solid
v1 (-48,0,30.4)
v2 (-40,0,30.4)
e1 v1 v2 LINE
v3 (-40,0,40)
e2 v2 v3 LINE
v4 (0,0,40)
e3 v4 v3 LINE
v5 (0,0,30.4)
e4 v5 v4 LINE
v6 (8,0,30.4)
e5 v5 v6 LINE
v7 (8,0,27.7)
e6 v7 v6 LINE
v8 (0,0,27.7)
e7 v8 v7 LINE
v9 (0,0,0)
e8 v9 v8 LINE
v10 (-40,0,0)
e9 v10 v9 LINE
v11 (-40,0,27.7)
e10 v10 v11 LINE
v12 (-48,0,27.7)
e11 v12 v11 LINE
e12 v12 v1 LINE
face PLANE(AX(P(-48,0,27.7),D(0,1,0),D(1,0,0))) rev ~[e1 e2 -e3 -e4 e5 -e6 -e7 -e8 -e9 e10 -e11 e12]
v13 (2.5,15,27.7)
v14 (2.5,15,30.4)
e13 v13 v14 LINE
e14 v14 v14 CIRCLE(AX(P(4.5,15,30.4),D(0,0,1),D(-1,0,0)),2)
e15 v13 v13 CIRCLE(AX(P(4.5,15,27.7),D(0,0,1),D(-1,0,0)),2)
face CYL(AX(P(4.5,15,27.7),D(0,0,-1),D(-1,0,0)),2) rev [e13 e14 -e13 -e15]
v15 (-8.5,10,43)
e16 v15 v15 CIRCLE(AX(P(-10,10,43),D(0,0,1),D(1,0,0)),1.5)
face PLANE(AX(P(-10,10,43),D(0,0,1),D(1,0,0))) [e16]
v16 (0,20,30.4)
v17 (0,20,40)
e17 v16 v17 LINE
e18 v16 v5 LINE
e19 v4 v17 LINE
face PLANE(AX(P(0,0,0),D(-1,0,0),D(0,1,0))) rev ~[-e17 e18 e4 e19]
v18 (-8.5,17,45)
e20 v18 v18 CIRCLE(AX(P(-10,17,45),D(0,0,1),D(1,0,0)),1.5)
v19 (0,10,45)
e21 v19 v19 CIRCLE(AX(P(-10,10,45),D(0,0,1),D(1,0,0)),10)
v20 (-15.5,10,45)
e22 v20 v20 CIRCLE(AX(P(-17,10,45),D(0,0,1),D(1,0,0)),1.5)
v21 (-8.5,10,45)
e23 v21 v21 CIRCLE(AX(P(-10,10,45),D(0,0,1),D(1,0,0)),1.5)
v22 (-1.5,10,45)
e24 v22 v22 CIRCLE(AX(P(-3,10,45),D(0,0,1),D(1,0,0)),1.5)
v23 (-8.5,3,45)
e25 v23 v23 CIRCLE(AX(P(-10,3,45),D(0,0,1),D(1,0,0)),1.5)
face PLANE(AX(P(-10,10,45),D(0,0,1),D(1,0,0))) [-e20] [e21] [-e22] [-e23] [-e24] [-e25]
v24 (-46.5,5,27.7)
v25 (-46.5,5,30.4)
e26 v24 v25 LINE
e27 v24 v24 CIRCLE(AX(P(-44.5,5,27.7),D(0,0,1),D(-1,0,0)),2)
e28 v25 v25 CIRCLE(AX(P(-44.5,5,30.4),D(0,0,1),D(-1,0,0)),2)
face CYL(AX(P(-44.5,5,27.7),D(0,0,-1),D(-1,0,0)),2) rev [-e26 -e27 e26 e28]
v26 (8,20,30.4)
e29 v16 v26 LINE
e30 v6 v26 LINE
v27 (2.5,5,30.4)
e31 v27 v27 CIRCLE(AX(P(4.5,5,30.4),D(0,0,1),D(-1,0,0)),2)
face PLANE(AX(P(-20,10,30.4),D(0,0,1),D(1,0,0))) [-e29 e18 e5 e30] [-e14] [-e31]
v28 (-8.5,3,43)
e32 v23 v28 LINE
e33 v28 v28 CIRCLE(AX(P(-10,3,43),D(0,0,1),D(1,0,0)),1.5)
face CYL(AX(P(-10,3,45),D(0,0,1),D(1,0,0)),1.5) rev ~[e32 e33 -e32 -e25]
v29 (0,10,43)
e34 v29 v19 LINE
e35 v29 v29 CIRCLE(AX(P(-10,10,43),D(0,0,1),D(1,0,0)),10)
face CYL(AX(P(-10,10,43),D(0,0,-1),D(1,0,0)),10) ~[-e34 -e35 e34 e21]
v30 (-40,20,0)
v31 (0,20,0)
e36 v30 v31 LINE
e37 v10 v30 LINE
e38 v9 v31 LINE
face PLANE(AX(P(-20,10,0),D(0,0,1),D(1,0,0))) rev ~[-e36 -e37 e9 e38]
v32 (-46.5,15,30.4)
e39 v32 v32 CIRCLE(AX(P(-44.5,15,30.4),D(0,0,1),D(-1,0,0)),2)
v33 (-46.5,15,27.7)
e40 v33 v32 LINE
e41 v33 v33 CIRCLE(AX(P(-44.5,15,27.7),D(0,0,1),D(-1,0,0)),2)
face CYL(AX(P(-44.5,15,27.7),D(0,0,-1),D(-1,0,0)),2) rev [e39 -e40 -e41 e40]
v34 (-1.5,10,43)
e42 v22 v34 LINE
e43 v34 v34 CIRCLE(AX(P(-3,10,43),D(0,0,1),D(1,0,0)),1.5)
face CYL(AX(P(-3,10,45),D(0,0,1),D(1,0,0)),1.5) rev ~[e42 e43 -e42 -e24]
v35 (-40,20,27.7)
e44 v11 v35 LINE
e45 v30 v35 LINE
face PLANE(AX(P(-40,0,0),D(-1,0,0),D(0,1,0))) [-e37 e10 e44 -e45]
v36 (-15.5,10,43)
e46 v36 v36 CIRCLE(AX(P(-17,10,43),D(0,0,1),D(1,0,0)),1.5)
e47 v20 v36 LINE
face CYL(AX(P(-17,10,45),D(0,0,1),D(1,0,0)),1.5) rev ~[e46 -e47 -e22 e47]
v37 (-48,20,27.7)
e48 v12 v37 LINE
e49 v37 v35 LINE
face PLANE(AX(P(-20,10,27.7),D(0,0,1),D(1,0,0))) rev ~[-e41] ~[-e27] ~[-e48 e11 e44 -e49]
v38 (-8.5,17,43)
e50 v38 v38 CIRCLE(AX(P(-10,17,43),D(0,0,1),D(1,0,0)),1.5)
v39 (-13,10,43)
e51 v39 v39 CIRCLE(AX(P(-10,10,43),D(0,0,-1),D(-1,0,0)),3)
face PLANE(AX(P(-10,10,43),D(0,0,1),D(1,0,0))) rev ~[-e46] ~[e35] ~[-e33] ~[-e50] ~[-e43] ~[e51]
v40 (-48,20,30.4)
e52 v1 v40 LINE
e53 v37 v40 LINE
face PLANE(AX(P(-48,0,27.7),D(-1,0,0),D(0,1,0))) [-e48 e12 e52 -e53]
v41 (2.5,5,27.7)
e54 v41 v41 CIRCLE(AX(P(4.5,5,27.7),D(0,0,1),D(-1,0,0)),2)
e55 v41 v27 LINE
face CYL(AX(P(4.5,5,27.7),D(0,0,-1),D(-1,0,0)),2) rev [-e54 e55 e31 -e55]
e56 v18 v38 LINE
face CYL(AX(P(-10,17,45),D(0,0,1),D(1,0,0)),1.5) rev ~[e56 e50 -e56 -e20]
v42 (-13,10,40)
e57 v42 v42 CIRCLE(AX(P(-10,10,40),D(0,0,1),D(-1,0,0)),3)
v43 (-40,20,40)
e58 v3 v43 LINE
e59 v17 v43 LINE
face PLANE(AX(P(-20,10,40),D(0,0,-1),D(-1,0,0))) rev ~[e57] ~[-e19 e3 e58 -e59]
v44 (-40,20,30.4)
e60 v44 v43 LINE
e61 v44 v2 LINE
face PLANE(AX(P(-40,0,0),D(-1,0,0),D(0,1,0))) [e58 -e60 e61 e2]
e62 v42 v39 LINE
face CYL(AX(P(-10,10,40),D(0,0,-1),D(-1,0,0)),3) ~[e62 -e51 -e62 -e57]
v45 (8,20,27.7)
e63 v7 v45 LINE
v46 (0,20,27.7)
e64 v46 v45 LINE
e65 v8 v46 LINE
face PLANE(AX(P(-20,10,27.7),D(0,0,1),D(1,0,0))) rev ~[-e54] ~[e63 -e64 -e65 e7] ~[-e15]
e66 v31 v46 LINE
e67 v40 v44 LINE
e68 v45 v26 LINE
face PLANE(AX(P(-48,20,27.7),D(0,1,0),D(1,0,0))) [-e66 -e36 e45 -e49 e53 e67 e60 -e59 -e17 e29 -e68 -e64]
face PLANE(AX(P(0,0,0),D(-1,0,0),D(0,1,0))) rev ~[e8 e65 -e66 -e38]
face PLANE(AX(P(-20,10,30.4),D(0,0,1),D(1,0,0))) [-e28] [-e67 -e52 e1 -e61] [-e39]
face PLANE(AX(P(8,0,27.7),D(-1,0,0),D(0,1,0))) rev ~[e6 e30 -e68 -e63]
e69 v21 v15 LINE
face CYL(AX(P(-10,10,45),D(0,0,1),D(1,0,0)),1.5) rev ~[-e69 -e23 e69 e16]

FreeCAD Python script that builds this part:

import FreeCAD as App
import Part
import Sketcher
from FreeCAD import Vector


def add_polygon(sketch, points):
    """Adds a closed chain of lines whose ends are joined by coincident constraints."""
    first, n = sketch.GeometryCount, len(points)
    for a, b in zip(points, points[1:] + points[:1]):
        sketch.addGeometry(Part.LineSegment(App.Vector(*a, 0), App.Vector(*b, 0)), False)
    for i in range(n):
        sketch.addConstraint(Sketcher.Constraint("Coincident", first + i, 2, first + (i + 1) % n, 1))

doc = App.newDocument("Part")
body = doc.addObject("PartDesign::Body", "Body")

# Sketch on XY plane
sketch1 = body.newObject("Sketcher::SketchObject", "Sketch")
sketch1.AttachmentSupport = (doc.getObject("XY_Plane"), [""])
sketch1.MapMode = "FlatFace"
add_polygon(sketch1, [(-40, 20), (-40, 0), (0, 0), (0, 20)])  # lines 0-3
sketch1.addConstraint([
    Sketcher.Constraint("Vertical", 0),
    Sketcher.Constraint("Horizontal", 1),
    Sketcher.Constraint("Vertical", 2),
    Sketcher.Constraint("Horizontal", 3),
    Sketcher.Constraint("Coincident", 1, 2, -1, 1),
    Sketcher.Constraint("DistanceX", 1, 1, 1, 2, 40.0),
    Sketcher.Constraint("DistanceY", 0, 2, 0, 1, 20.0),
])
pad1 = body.newObject("PartDesign::Pad", "Pad")
pad1.Profile = sketch1
pad1.Length = 27.7

# Sketch on XY plane
sketch2 = body.newObject("Sketcher::SketchObject", "Sketch001")
sketch2.AttachmentSupport = (doc.getObject("XY_Plane"), [""])
sketch2.MapMode = "FlatFace"
sketch2.AttachmentOffset = App.Placement(Vector(0, 0, 27.7), App.Rotation())
add_polygon(sketch2, [(-48, 20), (-48, 0), (8, 0), (8, 20)])  # lines 0-3
sketch2.addGeometry(Part.Circle(Vector(-44.5, 5, 0), Vector(0, 0, 1), 2), False)  # 4
sketch2.addGeometry(Part.Circle(Vector(4.5, 5, 0), Vector(0, 0, 1), 2), False)  # 5
sketch2.addGeometry(Part.Circle(Vector(-44.5, 15, 0), Vector(0, 0, 1), 2), False)  # 6
sketch2.addGeometry(Part.Circle(Vector(4.5, 15, 0), Vector(0, 0, 1), 2), False)  # 7
sketch2.addConstraint([
    Sketcher.Constraint("Vertical", 0),
    Sketcher.Constraint("Horizontal", 1),
    Sketcher.Constraint("Vertical", 2),
    Sketcher.Constraint("Horizontal", 3),
    Sketcher.Constraint("Equal", 4, 5),
    Sketcher.Constraint("Equal", 5, 6),
    Sketcher.Constraint("Equal", 6, 7),
    Sketcher.Constraint("PointOnObject", 0, 2, -1),
    Sketcher.Constraint("Horizontal", 4, 3, 5, 3),
    Sketcher.Constraint("Horizontal", 6, 3, 7, 3),
    Sketcher.Constraint("Vertical", 4, 3, 6, 3),
    Sketcher.Constraint("Vertical", 5, 3, 7, 3),
    Sketcher.Constraint("Diameter", 4, 4.0),
    Sketcher.Constraint("DistanceX", 1, 1, 1, 2, 56.0),
    Sketcher.Constraint("DistanceY", 0, 2, 0, 1, 20.0),
    Sketcher.Constraint("DistanceY", -1, 1, 4, 3, 5.0),
    Sketcher.Constraint("DistanceY", -1, 1, 6, 3, 15.0),
    Sketcher.Constraint("DistanceX", 0, 2, -1, 1, 48.0),
    Sketcher.Constraint("DistanceX", 4, 3, 5, 3, 49.0),
    Sketcher.Constraint("DistanceX", 4, 3, -1, 1, 44.5),
])
pad2 = body.newObject("PartDesign::Pad", "Pad001")
pad2.Profile = sketch2
pad2.Length = 2.7

# Sketch on XY plane
sketch3 = body.newObject("Sketcher::SketchObject", "Sketch002")
sketch3.AttachmentSupport = (doc.getObject("XY_Plane"), [""])
sketch3.MapMode = "FlatFace"
add_polygon(sketch3, [(0, 20), (0, 0), (-40, 0), (-40, 20)])  # lines 0-3
sketch3.addConstraint([
    Sketcher.Constraint("Vertical", 0),
    Sketcher.Constraint("Horizontal", 1),
    Sketcher.Constraint("Vertical", 2),
    Sketcher.Constraint("Horizontal", 3),
    Sketcher.Constraint("Coincident", 0, 2, -1, 1),
    Sketcher.Constraint("DistanceX", 1, 2, 1, 1, 40.0),
    Sketcher.Constraint("DistanceY", 0, 2, 0, 1, 20.0),
])
pad3 = body.newObject("PartDesign::Pad", "Pad002")
pad3.Profile = sketch3
pad3.Length = 40

# Sketch on XY plane
sketch4 = body.newObject("Sketcher::SketchObject", "Sketch003")
sketch4.AttachmentSupport = (doc.getObject("XY_Plane"), [""])
sketch4.MapMode = "FlatFace"
sketch4.AttachmentOffset = App.Placement(Vector(0, 0, 40), App.Rotation())
sketch4.addGeometry(Part.Circle(Vector(-10, 10, 0), Vector(0, 0, 1), 3), False)
sketch4.addConstraint([
    Sketcher.Constraint("Diameter", 0, 6.0),
    Sketcher.Constraint("DistanceX", 0, 3, -1, 1, 10.0),
    Sketcher.Constraint("DistanceY", -1, 1, 0, 3, 10.0),
])
pad4 = body.newObject("PartDesign::Pad", "Pad003")
pad4.Profile = sketch4
pad4.Length = 4.5

# Sketch on XY plane
sketch5 = body.newObject("Sketcher::SketchObject", "Sketch004")
sketch5.AttachmentSupport = (doc.getObject("XY_Plane"), [""])
sketch5.MapMode = "FlatFace"
sketch5.AttachmentOffset = App.Placement(Vector(0, 0, 44.5), App.Rotation())
sketch5.addGeometry(Part.Circle(Vector(-10, 10, 0), Vector(0, 0, 1), 10), False)
sketch5.addConstraint([
    Sketcher.Constraint("Diameter", 0, 20.0),
    Sketcher.Constraint("DistanceX", 0, 3, -1, 1, 10.0),
    Sketcher.Constraint("DistanceY", -1, 1, 0, 3, 10.0),
])
pad5 = body.newObject("PartDesign::Pad", "Pad004")
pad5.Profile = sketch5
pad5.Type = "TwoLengths"
pad5.Length = 0.5
pad5.Length2 = 1.5

# Sketch on XY plane
sketch6 = body.newObject("Sketcher::SketchObject", "Sketch005")
sketch6.AttachmentSupport = (doc.getObject("XY_Plane"), [""])
sketch6.MapMode = "FlatFace"
sketch6.AttachmentOffset = App.Placement(Vector(0, 0, 45), App.Rotation())
sketch6.addGeometry([
    Part.Circle(Vector(-10, 10, 0), Vector(0, 0, 1), 1.5),  # 0
    Part.Circle(Vector(-3, 10, 0), Vector(0, 0, 1), 1.5),  # 1
    Part.Circle(Vector(-10, 17, 0), Vector(0, 0, 1), 1.5),  # 2
    Part.Circle(Vector(-10, 3, 0), Vector(0, 0, 1), 1.5),  # 3
    Part.Circle(Vector(-17, 10, 0), Vector(0, 0, 1), 1.5),  # 4
], False)
sketch6.addConstraint([
    Sketcher.Constraint("Equal", 0, 1),
    Sketcher.Constraint("Equal", 1, 2),
    Sketcher.Constraint("Equal", 2, 3),
    Sketcher.Constraint("Equal", 3, 4),
    Sketcher.Constraint("Horizontal", 0, 3, 1, 3),
    Sketcher.Constraint("Horizontal", 1, 3, 4, 3),
    Sketcher.Constraint("Vertical", 0, 3, 2, 3),
    Sketcher.Constraint("Vertical", 2, 3, 3, 3),
    Sketcher.Constraint("Diameter", 0, 3.0),
    Sketcher.Constraint("DistanceX", 0, 3, -1, 1, 10.0),
    Sketcher.Constraint("DistanceY", -1, 1, 0, 3, 10.0),
    Sketcher.Constraint("DistanceX", 1, 3, -1, 1, 3.0),
    Sketcher.Constraint("DistanceY", -1, 1, 2, 3, 17.0),
    Sketcher.Constraint("DistanceY", -1, 1, 3, 3, 3.0),
    Sketcher.Constraint("DistanceX", 4, 3, -1, 1, 17.0),
])
pocket1 = body.newObject("PartDesign::Pocket", "Pocket")
pocket1.Profile = sketch6
pocket1.Length = 2

doc.recompute()
